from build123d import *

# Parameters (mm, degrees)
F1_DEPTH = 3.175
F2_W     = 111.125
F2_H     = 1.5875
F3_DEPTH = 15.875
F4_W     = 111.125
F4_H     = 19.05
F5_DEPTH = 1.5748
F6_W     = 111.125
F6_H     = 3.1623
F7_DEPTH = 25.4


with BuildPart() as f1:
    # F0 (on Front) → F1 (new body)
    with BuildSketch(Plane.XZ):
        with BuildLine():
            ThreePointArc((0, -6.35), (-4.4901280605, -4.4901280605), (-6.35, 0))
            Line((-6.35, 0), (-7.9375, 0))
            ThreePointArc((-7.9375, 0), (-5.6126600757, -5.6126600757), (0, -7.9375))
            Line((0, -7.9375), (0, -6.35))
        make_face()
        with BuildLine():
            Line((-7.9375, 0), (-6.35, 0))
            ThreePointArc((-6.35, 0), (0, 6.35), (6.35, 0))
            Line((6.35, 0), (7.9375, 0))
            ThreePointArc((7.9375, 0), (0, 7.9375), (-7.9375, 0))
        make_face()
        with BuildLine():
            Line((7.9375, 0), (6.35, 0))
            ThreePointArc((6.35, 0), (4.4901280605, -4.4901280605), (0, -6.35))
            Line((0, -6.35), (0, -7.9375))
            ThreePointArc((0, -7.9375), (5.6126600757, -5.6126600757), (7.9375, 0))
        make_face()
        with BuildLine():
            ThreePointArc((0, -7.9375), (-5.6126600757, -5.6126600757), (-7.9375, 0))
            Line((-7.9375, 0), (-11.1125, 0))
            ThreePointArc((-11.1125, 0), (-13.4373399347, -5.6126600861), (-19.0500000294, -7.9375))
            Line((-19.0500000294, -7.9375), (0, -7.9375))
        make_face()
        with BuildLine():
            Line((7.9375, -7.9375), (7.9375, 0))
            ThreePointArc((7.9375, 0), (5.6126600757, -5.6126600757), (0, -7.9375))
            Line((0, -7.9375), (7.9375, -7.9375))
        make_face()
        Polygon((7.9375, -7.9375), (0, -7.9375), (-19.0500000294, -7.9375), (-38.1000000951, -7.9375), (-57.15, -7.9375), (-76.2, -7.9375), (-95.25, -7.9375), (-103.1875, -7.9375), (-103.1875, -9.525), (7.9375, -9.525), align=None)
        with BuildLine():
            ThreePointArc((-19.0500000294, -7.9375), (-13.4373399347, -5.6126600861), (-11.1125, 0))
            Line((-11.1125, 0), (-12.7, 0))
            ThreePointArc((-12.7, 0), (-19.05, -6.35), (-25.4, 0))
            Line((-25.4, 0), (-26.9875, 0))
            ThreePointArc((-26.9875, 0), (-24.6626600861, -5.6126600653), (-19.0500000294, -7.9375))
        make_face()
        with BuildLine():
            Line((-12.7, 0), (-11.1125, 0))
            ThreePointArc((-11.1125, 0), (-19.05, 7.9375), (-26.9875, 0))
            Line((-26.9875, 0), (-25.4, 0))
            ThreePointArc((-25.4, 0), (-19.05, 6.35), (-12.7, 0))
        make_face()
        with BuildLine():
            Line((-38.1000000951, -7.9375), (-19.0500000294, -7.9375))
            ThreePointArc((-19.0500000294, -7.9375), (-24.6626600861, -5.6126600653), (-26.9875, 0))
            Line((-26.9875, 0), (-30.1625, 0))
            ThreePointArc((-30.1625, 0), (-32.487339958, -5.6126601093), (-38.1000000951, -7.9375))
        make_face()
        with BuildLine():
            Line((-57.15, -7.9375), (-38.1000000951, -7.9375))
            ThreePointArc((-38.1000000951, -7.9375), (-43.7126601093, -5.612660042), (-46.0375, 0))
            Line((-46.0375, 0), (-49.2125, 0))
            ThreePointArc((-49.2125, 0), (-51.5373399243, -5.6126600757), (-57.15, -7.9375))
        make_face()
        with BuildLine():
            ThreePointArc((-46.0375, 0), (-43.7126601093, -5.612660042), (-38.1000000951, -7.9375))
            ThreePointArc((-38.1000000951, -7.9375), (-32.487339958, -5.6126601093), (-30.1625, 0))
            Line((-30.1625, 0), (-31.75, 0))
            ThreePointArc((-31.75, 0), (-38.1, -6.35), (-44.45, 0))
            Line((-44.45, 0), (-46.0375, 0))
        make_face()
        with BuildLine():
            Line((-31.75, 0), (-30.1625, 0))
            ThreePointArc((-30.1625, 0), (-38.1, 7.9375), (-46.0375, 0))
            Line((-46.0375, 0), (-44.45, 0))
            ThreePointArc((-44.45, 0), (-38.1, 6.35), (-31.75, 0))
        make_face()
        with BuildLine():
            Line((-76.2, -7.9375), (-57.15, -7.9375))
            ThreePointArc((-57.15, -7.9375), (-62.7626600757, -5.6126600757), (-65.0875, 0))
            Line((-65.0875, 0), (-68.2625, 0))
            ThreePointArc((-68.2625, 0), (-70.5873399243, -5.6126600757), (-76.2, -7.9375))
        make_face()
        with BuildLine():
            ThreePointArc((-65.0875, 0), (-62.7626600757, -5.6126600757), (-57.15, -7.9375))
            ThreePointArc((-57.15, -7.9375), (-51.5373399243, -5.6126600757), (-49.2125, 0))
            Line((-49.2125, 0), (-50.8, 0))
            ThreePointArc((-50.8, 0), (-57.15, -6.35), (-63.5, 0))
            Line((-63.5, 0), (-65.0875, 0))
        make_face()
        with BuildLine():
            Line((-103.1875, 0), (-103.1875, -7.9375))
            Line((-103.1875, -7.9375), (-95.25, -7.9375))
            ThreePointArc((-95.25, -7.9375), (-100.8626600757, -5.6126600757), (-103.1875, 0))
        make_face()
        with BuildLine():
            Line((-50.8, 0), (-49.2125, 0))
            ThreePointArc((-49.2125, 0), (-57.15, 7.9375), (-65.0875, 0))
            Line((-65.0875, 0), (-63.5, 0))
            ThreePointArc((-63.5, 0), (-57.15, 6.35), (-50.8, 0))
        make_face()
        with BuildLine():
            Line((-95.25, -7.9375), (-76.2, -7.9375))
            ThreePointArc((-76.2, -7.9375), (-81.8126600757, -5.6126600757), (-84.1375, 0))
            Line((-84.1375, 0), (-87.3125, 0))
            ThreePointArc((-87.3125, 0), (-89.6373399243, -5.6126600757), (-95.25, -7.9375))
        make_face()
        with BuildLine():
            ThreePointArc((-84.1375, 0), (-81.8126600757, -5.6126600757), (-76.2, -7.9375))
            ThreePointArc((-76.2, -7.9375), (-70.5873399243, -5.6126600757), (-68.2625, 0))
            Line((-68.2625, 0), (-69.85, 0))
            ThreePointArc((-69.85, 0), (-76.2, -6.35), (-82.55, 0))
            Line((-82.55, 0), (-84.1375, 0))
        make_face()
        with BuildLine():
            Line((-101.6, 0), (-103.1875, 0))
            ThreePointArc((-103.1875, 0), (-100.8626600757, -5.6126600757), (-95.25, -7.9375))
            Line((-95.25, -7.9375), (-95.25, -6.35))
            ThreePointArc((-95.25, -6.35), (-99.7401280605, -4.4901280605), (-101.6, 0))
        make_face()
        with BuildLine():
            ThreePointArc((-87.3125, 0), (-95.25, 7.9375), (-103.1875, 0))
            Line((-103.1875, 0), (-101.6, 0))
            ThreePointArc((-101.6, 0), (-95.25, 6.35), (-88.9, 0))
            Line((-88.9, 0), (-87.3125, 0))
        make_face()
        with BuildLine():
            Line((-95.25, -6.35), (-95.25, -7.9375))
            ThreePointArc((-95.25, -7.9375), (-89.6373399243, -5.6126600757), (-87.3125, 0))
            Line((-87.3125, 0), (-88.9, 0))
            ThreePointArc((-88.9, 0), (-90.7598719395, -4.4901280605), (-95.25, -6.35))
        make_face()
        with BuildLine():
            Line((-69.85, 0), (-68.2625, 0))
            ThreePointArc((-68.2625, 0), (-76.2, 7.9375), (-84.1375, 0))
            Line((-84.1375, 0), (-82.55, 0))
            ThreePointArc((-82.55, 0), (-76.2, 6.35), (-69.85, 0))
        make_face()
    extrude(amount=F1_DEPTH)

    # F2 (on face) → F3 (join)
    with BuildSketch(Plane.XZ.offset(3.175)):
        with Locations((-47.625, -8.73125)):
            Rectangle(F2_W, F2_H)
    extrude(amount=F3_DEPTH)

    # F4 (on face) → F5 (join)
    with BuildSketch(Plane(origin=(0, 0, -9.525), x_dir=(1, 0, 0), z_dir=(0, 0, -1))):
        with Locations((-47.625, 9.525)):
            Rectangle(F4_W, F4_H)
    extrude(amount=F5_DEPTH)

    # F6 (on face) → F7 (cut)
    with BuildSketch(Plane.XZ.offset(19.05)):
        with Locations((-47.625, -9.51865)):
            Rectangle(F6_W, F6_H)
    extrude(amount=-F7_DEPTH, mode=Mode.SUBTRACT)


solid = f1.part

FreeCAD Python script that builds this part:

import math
import FreeCAD as App
import Part
import Sketcher
from FreeCAD import Vector
Q = App.Units.Quantity


def add_polygon(sketch, points):
    """Adds a closed chain of lines whose ends are joined by coincident constraints."""
    first, n = sketch.GeometryCount, len(points)
    for a, b in zip(points, points[1:] + points[:1]):
        sketch.addGeometry(Part.LineSegment(App.Vector(*a, 0), App.Vector(*b, 0)), False)
    for i in range(n):
        sketch.addConstraint(Sketcher.Constraint("Coincident", first + i, 2, first + (i + 1) % n, 1))

doc = App.newDocument("Part")
body = doc.addObject("PartDesign::Body", "Body")

sketch1 = body.newObject("Sketcher::SketchObject", "Sketch")
sketch1.AttachmentSupport = (doc.getObject("XZ_Plane"), [""])
sketch1.MapMode = "FlatFace"
sketch1.addGeometry(Part.LineSegment(Vector(-84.1375, 0, 0), Vector(-87.3125, 0, 0)), False)
sketch1.addGeometry(Part.ArcOfCircle(Part.Circle(Vector(-95.25, 0, 0), Vector(0, 0, 1), 7.9375), math.radians(0), math.radians(180)), False)
sketch1.addGeometry(Part.LineSegment(Vector(-103.1875, 0, 0), Vector(-103.1875, -9.525, 0)), False)
sketch1.addGeometry(Part.LineSegment(Vector(-103.1875, -9.525, 0), Vector(7.9375, -9.525, 0)), False)
sketch1.addGeometry(Part.LineSegment(Vector(7.9375, -9.525, 0), Vector(7.9375, 0, 0)), False)
sketch1.addGeometry(Part.ArcOfCircle(Part.Circle(Vector(0, 0, 0), Vector(0, 0, 1), 7.9375), math.radians(0), math.radians(180)), False)
sketch1.addGeometry(Part.LineSegment(Vector(-7.9375, 0, 0), Vector(-11.1125, 0, 0)), False)
sketch1.addGeometry(Part.ArcOfCircle(Part.Circle(Vector(-19.05, 0, 0), Vector(0, 0, 1), 7.9375), math.radians(0), math.radians(180)), False)
sketch1.addGeometry(Part.LineSegment(Vector(-26.9875, 0, 0), Vector(-30.1625, 0, 0)), False)
sketch1.addGeometry(Part.ArcOfCircle(Part.Circle(Vector(-38.1, 0, 0), Vector(0, 0, 1), 7.9375), math.radians(0), math.radians(180)), False)
sketch1.addGeometry(Part.LineSegment(Vector(-46.0375, 0, 0), Vector(-49.2125, 0, 0)), False)
sketch1.addGeometry(Part.ArcOfCircle(Part.Circle(Vector(-57.15, 0, 0), Vector(0, 0, 1), 7.9375), math.radians(0), math.radians(180)), False)
sketch1.addGeometry(Part.LineSegment(Vector(-65.0875, 0, 0), Vector(-68.2625, 0, 0)), False)
sketch1.addGeometry(Part.ArcOfCircle(Part.Circle(Vector(-76.2, 0, 0), Vector(0, 0, 1), 7.9375), math.radians(0), math.radians(180)), False)
sketch1.addGeometry(Part.Circle(Vector(-76.2, 0, 0), Vector(0, 0, 1), 6.35), False)
sketch1.addGeometry(Part.ArcOfCircle(Part.Circle(Vector(-95.25, 0, 0), Vector(0, 0, 1), 6.35), math.radians(0), math.radians(180)), False)
sketch1.addGeometry(Part.ArcOfCircle(Part.Circle(Vector(-95.25, 0, 0), Vector(0, 0, 1), 6.35), math.radians(-90), math.radians(0)), False)
sketch1.addGeometry(Part.ArcOfCircle(Part.Circle(Vector(-95.25, 0, 0), Vector(0, 0, 1), 6.35), math.radians(180), math.radians(270)), False)
sketch1.addGeometry(Part.Circle(Vector(-57.15, 0, 0), Vector(0, 0, 1), 6.35), False)
sketch1.addGeometry(Part.Circle(Vector(-38.1, 0, 0), Vector(0, 0, 1), 6.35), False)
sketch1.addGeometry(Part.Circle(Vector(-19.05, 0, 0), Vector(0, 0, 1), 6.35), False)
sketch1.addGeometry(Part.ArcOfCircle(Part.Circle(Vector(0, 0, 0), Vector(0, 0, 1), 6.35), math.radians(180), math.radians(270)), False)
sketch1.addGeometry(Part.ArcOfCircle(Part.Circle(Vector(0, 0, 0), Vector(0, 0, 1), 6.35), math.radians(0), math.radians(180)), False)
sketch1.addGeometry(Part.ArcOfCircle(Part.Circle(Vector(0, 0, 0), Vector(0, 0, 1), 6.35), math.radians(-90), math.radians(0)), False)
sketch1.addConstraint(Sketcher.Constraint("Coincident", 0, 2, 1, 1))
sketch1.addConstraint(Sketcher.Constraint("Tangent", 1, 2, 2, 1))
sketch1.addConstraint(Sketcher.Constraint("Coincident", 2, 2, 3, 1))
sketch1.addConstraint(Sketcher.Constraint("Coincident", 3, 2, 4, 1))
sketch1.addConstraint(Sketcher.Constraint("Tangent", 4, 2, 5, 1))
sketch1.addConstraint(Sketcher.Constraint("Coincident", 5, 2, 6, 1))
sketch1.addConstraint(Sketcher.Constraint("Coincident", 6, 2, 7, 1))
sketch1.addConstraint(Sketcher.Constraint("Coincident", 7, 2, 8, 1))
sketch1.addConstraint(Sketcher.Constraint("Coincident", 8, 2, 9, 1))
sketch1.addConstraint(Sketcher.Constraint("Coincident", 9, 2, 10, 1))
sketch1.addConstraint(Sketcher.Constraint("Coincident", 10, 2, 11, 1))
sketch1.addConstraint(Sketcher.Constraint("Coincident", 11, 2, 12, 1))
sketch1.addConstraint(Sketcher.Constraint("Coincident", 12, 2, 13, 1))
sketch1.addConstraint(Sketcher.Constraint("Coincident", 13, 2, 0, 1))
sketch1.addConstraint(Sketcher.Constraint("Tangent", 15, 1, 16, 2))
sketch1.addConstraint(Sketcher.Constraint("Tangent", 16, 1, 17, 2))
sketch1.addConstraint(Sketcher.Constraint("Tangent", 17, 1, 15, 2))
sketch1.addConstraint(Sketcher.Constraint("Tangent", 21, 1, 22, 2))
sketch1.addConstraint(Sketcher.Constraint("Tangent", 22, 1, 23, 2))
sketch1.addConstraint(Sketcher.Constraint("Tangent", 23, 1, 21, 2))
sketch1.addConstraint(Sketcher.Constraint("Horizontal", 0))
sketch1.addConstraint(Sketcher.Constraint("Vertical", 2))
sketch1.addConstraint(Sketcher.Constraint("Horizontal", 3))
sketch1.addConstraint(Sketcher.Constraint("Vertical", 4))
sketch1.addConstraint(Sketcher.Constraint("Horizontal", 6))
sketch1.addConstraint(Sketcher.Constraint("Horizontal", 8))
sketch1.addConstraint(Sketcher.Constraint("Horizontal", 10))
sketch1.addConstraint(Sketcher.Constraint("Horizontal", 12))
sketch1.addConstraint(Sketcher.Constraint("Coincident", 5, 3, -1, 1))
sketch1.addConstraint(Sketcher.Constraint("Coincident", 21, 3, -1, 1))
sketch1.addConstraint(Sketcher.Constraint("Coincident", 14, 3, 13, 3))
sketch1.addConstraint(Sketcher.Constraint("Coincident", 15, 3, 1, 3))
sketch1.addConstraint(Sketcher.Constraint("Coincident", 18, 3, 11, 3))
sketch1.addConstraint(Sketcher.Constraint("Coincident", 19, 3, 9, 3))
sketch1.addConstraint(Sketcher.Constraint("Coincident", 20, 3, 7, 3))
sketch1.addConstraint(Sketcher.Constraint("Equal", 1, 5))
sketch1.addConstraint(Sketcher.Constraint("Equal", 5, 7))
sketch1.addConstraint(Sketcher.Constraint("Equal", 7, 9))
sketch1.addConstraint(Sketcher.Constraint("Equal", 9, 11))
sketch1.addConstraint(Sketcher.Constraint("Equal", 11, 13))
sketch1.addConstraint(Sketcher.Constraint("Equal", 14, 15))
sketch1.addConstraint(Sketcher.Constraint("Equal", 17, 18))
sketch1.addConstraint(Sketcher.Constraint("Equal", 18, 19))
sketch1.addConstraint(Sketcher.Constraint("Equal", 19, 20))
sketch1.addConstraint(Sketcher.Constraint("Equal", 20, 21))
sketch1.addConstraint(Sketcher.Constraint("PointOnObject", 1, 3, -1))
sketch1.addConstraint(Sketcher.Constraint("PointOnObject", 7, 3, -1))
sketch1.addConstraint(Sketcher.Constraint("PointOnObject", 9, 3, -1))
sketch1.addConstraint(Sketcher.Constraint("PointOnObject", 11, 3, -1))
sketch1.addConstraint(Sketcher.Constraint("PointOnObject", 13, 3, -1))
sketch1.addConstraint(Sketcher.Constraint("PointOnObject", 0, 2, -1))
sketch1.addConstraint(Sketcher.Constraint("PointOnObject", 5, 2, -1))
sketch1.addConstraint(Sketcher.Constraint("PointOnObject", 7, 2, -1))
sketch1.addConstraint(Sketcher.Constraint("PointOnObject", 9, 2, -1))
sketch1.addConstraint(Sketcher.Constraint("PointOnObject", 11, 2, -1))
sketch1.addConstraint(Sketcher.Constraint("PointOnObject", 15, 1, -1))
sketch1.addConstraint(Sketcher.Constraint("PointOnObject", 17, 1, -1))
sketch1.addConstraint(Sketcher.Constraint("PointOnObject", 21, 1, -1))
sketch1.addConstraint(Sketcher.Constraint("PointOnObject", 22, 1, -1))
sketch1.addConstraint(Sketcher.Constraint("PointOnObject", 23, 1, -2))
sketch1.addConstraint(Sketcher.Constraint("Vertical", 17, 3, 16, 1))
sketch1.addConstraint(Sketcher.Constraint("Equal", 0, 6))
sketch1.addConstraint(Sketcher.Constraint("Equal", 6, 8))
sketch1.addConstraint(Sketcher.Constraint("Equal", 8, 10))
sketch1.addConstraint(Sketcher.Constraint("Equal", 10, 12))
sketch1.addConstraint(Sketcher.Constraint("Diameter", 14, Q("0.5 in")))
sketch1.addConstraint(Sketcher.Constraint("DistanceX", 13, 3, -1, 1, Q("3 in")))
sketch1.addConstraint(Sketcher.Constraint("Radius", 1, Q("0.3125 in")))
sketch1.addConstraint(Sketcher.Constraint("DistanceY", 2, 2, 2, 1, Q("0.375 in")))
pad1 = body.newObject("PartDesign::Pad", "Pad")
pad1.Profile = sketch1
pad1.Length = Q("0.125 in")

sketch2 = body.newObject("Sketcher::SketchObject", "Sketch001")
sketch2.AttachmentSupport = (doc.getObject("XZ_Plane"), [""])
sketch2.MapMode = "FlatFace"
sketch2.AttachmentOffset = App.Placement(Vector(0, 0, 0.125 * 25.4), App.Rotation())
add_polygon(sketch2, [(-103.1875, -7.9375), (-103.1875, -9.525), (7.9375, -9.525), (7.9375, -7.9375)])
sketch2.addConstraint(Sketcher.Constraint("Vertical", 0))
sketch2.addConstraint(Sketcher.Constraint("Horizontal", 1))
sketch2.addConstraint(Sketcher.Constraint("Vertical", 2))
sketch2.addConstraint(Sketcher.Constraint("Horizontal", 3))
sketch2.addConstraint(Sketcher.Constraint("DistanceX", 1, 1, 1, 2, Q("4.375 in")))
sketch2.addConstraint(Sketcher.Constraint("DistanceY", 0, 2, 0, 1, Q("0.0625 in")))
sketch2.addConstraint(Sketcher.Constraint("DistanceX", 0, 2, -1, 1, Q("4.0625 in")))
sketch2.addConstraint(Sketcher.Constraint("DistanceY", 0, 2, -1, 1, Q("0.375 in")))
pad2 = body.newObject("PartDesign::Pad", "Pad001")
pad2.Profile = sketch2
pad2.Length = Q("0.625 in")

sketch3 = body.newObject("Sketcher::SketchObject", "Sketch002")
sketch3.AttachmentSupport = (doc.getObject("XY_Plane"), [""])
sketch3.MapMode = "FlatFace"
sketch3.AttachmentOffset = App.Placement(Vector(0, 0, -0.375 * 25.4), App.Rotation())
add_polygon(sketch3, [(-103.1875, -19.05), (-103.1875, 0), (7.9375, 0), (7.9375, -19.05)])
sketch3.addConstraint(Sketcher.Constraint("Vertical", 0))
sketch3.addConstraint(Sketcher.Constraint("Horizontal", 1))
sketch3.addConstraint(Sketcher.Constraint("Vertical", 2))
sketch3.addConstraint(Sketcher.Constraint("Horizontal", 3))
sketch3.addConstraint(Sketcher.Constraint("PointOnObject", 0, 2, -1))
sketch3.addConstraint(Sketcher.Constraint("DistanceY", 0, 1, 0, 2, Q("0.75 in")))
sketch3.addConstraint(Sketcher.Constraint("DistanceX", 1, 1, 1, 2, Q("4.375 in")))
sketch3.addConstraint(Sketcher.Constraint("DistanceX", 0, 2, -1, 1, Q("4.0625 in")))
pad3 = body.newObject("PartDesign::Pad", "Pad002")
pad3.Profile = sketch3
pad3.Length = Q("0.062 in")
pad3.Reversed = True

sketch4 = body.newObject("Sketcher::SketchObject", "Sketch003")
sketch4.AttachmentSupport = (doc.getObject("XZ_Plane"), [""])
sketch4.MapMode = "FlatFace"
sketch4.AttachmentOffset = App.Placement(Vector(0, 0, 0.75 * 25.4), App.Rotation())
add_polygon(sketch4, [(-103.1875, -7.9375), (-103.1875, -11.0998), (7.9375, -11.0998), (7.9375, -7.9375)])
sketch4.addConstraint(Sketcher.Constraint("Vertical", 0))
sketch4.addConstraint(Sketcher.Constraint("Horizontal", 1))
sketch4.addConstraint(Sketcher.Constraint("Vertical", 2))
sketch4.addConstraint(Sketcher.Constraint("Horizontal", 3))
sketch4.addConstraint(Sketcher.Constraint("DistanceX", 1, 1, 1, 2, Q("4.375 in")))
sketch4.addConstraint(Sketcher.Constraint("DistanceY", 0, 2, 0, 1, Q("0.1245 in")))
sketch4.addConstraint(Sketcher.Constraint("DistanceX", 0, 2, -1, 1, Q("4.0625 in")))
sketch4.addConstraint(Sketcher.Constraint("DistanceY", 0, 2, -1, 1, Q("0.437 in")))
pocket1 = body.newObject("PartDesign::Pocket", "Pocket")
pocket1.Profile = sketch4
pocket1.Length = Q("1 in")

doc.recompute()
